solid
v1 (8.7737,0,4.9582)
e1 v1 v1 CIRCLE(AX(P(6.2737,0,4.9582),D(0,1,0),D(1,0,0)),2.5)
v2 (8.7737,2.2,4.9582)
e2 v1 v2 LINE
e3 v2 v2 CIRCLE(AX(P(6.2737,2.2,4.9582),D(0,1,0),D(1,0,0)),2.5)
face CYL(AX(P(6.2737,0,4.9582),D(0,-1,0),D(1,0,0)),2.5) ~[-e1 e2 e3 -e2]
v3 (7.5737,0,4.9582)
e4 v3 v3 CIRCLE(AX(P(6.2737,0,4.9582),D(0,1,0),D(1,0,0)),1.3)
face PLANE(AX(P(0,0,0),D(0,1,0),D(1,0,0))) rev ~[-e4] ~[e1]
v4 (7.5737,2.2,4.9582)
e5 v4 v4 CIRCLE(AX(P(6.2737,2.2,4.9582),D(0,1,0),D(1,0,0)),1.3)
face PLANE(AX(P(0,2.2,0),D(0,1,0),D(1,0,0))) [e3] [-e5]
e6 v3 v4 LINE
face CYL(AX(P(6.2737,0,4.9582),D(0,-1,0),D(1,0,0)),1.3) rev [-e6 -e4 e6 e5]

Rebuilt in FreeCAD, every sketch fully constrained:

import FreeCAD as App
import Part
import Sketcher

V = App.Vector
Q = App.Units.Quantity

doc = App.newDocument("Part")
params = doc.addObject("Spreadsheet::Sheet", "Params")
for row, (alias, value) in enumerate([
    ("sketch1_diameter", "5 mm"),
    ("sketch1_diameter2", "2.6 mm"),
    ("pad1_length", "2.2 mm"),
], start=1):
    params.set(f"A{row}", alias)
    params.set(f"B{row}", "=" + value)
    params.setAlias(f"B{row}", alias)

body = doc.addObject("PartDesign::Body", "Body")

# Sketch on XZ plane
sketch1 = doc.addObject("Sketcher::SketchObject", "Sketch")
body.addObject(sketch1)
sketch1.AttachmentSupport = (doc.XZ_Plane, [""])
sketch1.MapMode = "FlatFace"
sketch1.addGeometry(Part.Circle(V(6.3, 5, 0), V(0, 0, 1), 2.5), False)
sketch1.addGeometry(Part.Circle(V(6.3, 5, 0), V(0, 0, 1), 1.3), False)
sketch1.addConstraint(Sketcher.Constraint("Coincident", 1, 3, 0, 3))
sketch1.addConstraint(Sketcher.Constraint("Diameter", 0, Q("5 mm")))
sketch1.addConstraint(Sketcher.Constraint("Diameter", 1, Q("2.6 mm")))
sketch1.addConstraint(Sketcher.Constraint("DistanceX", -1, 1, 0, 3, Q("6.2737 mm")))
sketch1.addConstraint(Sketcher.Constraint("DistanceY", -1, 1, 0, 3, Q("4.9582 mm")))
sketch1.setExpression("Constraints[1]", "Params.sketch1_diameter")
sketch1.setExpression("Constraints[2]", "Params.sketch1_diameter2")
pad1 = doc.addObject("PartDesign::Pad", "Pad")
body.addObject(pad1)
pad1.Profile = sketch1
pad1.setExpression("Length", "Params.pad1_length")
pad1.Reversed = True

doc.recompute()
